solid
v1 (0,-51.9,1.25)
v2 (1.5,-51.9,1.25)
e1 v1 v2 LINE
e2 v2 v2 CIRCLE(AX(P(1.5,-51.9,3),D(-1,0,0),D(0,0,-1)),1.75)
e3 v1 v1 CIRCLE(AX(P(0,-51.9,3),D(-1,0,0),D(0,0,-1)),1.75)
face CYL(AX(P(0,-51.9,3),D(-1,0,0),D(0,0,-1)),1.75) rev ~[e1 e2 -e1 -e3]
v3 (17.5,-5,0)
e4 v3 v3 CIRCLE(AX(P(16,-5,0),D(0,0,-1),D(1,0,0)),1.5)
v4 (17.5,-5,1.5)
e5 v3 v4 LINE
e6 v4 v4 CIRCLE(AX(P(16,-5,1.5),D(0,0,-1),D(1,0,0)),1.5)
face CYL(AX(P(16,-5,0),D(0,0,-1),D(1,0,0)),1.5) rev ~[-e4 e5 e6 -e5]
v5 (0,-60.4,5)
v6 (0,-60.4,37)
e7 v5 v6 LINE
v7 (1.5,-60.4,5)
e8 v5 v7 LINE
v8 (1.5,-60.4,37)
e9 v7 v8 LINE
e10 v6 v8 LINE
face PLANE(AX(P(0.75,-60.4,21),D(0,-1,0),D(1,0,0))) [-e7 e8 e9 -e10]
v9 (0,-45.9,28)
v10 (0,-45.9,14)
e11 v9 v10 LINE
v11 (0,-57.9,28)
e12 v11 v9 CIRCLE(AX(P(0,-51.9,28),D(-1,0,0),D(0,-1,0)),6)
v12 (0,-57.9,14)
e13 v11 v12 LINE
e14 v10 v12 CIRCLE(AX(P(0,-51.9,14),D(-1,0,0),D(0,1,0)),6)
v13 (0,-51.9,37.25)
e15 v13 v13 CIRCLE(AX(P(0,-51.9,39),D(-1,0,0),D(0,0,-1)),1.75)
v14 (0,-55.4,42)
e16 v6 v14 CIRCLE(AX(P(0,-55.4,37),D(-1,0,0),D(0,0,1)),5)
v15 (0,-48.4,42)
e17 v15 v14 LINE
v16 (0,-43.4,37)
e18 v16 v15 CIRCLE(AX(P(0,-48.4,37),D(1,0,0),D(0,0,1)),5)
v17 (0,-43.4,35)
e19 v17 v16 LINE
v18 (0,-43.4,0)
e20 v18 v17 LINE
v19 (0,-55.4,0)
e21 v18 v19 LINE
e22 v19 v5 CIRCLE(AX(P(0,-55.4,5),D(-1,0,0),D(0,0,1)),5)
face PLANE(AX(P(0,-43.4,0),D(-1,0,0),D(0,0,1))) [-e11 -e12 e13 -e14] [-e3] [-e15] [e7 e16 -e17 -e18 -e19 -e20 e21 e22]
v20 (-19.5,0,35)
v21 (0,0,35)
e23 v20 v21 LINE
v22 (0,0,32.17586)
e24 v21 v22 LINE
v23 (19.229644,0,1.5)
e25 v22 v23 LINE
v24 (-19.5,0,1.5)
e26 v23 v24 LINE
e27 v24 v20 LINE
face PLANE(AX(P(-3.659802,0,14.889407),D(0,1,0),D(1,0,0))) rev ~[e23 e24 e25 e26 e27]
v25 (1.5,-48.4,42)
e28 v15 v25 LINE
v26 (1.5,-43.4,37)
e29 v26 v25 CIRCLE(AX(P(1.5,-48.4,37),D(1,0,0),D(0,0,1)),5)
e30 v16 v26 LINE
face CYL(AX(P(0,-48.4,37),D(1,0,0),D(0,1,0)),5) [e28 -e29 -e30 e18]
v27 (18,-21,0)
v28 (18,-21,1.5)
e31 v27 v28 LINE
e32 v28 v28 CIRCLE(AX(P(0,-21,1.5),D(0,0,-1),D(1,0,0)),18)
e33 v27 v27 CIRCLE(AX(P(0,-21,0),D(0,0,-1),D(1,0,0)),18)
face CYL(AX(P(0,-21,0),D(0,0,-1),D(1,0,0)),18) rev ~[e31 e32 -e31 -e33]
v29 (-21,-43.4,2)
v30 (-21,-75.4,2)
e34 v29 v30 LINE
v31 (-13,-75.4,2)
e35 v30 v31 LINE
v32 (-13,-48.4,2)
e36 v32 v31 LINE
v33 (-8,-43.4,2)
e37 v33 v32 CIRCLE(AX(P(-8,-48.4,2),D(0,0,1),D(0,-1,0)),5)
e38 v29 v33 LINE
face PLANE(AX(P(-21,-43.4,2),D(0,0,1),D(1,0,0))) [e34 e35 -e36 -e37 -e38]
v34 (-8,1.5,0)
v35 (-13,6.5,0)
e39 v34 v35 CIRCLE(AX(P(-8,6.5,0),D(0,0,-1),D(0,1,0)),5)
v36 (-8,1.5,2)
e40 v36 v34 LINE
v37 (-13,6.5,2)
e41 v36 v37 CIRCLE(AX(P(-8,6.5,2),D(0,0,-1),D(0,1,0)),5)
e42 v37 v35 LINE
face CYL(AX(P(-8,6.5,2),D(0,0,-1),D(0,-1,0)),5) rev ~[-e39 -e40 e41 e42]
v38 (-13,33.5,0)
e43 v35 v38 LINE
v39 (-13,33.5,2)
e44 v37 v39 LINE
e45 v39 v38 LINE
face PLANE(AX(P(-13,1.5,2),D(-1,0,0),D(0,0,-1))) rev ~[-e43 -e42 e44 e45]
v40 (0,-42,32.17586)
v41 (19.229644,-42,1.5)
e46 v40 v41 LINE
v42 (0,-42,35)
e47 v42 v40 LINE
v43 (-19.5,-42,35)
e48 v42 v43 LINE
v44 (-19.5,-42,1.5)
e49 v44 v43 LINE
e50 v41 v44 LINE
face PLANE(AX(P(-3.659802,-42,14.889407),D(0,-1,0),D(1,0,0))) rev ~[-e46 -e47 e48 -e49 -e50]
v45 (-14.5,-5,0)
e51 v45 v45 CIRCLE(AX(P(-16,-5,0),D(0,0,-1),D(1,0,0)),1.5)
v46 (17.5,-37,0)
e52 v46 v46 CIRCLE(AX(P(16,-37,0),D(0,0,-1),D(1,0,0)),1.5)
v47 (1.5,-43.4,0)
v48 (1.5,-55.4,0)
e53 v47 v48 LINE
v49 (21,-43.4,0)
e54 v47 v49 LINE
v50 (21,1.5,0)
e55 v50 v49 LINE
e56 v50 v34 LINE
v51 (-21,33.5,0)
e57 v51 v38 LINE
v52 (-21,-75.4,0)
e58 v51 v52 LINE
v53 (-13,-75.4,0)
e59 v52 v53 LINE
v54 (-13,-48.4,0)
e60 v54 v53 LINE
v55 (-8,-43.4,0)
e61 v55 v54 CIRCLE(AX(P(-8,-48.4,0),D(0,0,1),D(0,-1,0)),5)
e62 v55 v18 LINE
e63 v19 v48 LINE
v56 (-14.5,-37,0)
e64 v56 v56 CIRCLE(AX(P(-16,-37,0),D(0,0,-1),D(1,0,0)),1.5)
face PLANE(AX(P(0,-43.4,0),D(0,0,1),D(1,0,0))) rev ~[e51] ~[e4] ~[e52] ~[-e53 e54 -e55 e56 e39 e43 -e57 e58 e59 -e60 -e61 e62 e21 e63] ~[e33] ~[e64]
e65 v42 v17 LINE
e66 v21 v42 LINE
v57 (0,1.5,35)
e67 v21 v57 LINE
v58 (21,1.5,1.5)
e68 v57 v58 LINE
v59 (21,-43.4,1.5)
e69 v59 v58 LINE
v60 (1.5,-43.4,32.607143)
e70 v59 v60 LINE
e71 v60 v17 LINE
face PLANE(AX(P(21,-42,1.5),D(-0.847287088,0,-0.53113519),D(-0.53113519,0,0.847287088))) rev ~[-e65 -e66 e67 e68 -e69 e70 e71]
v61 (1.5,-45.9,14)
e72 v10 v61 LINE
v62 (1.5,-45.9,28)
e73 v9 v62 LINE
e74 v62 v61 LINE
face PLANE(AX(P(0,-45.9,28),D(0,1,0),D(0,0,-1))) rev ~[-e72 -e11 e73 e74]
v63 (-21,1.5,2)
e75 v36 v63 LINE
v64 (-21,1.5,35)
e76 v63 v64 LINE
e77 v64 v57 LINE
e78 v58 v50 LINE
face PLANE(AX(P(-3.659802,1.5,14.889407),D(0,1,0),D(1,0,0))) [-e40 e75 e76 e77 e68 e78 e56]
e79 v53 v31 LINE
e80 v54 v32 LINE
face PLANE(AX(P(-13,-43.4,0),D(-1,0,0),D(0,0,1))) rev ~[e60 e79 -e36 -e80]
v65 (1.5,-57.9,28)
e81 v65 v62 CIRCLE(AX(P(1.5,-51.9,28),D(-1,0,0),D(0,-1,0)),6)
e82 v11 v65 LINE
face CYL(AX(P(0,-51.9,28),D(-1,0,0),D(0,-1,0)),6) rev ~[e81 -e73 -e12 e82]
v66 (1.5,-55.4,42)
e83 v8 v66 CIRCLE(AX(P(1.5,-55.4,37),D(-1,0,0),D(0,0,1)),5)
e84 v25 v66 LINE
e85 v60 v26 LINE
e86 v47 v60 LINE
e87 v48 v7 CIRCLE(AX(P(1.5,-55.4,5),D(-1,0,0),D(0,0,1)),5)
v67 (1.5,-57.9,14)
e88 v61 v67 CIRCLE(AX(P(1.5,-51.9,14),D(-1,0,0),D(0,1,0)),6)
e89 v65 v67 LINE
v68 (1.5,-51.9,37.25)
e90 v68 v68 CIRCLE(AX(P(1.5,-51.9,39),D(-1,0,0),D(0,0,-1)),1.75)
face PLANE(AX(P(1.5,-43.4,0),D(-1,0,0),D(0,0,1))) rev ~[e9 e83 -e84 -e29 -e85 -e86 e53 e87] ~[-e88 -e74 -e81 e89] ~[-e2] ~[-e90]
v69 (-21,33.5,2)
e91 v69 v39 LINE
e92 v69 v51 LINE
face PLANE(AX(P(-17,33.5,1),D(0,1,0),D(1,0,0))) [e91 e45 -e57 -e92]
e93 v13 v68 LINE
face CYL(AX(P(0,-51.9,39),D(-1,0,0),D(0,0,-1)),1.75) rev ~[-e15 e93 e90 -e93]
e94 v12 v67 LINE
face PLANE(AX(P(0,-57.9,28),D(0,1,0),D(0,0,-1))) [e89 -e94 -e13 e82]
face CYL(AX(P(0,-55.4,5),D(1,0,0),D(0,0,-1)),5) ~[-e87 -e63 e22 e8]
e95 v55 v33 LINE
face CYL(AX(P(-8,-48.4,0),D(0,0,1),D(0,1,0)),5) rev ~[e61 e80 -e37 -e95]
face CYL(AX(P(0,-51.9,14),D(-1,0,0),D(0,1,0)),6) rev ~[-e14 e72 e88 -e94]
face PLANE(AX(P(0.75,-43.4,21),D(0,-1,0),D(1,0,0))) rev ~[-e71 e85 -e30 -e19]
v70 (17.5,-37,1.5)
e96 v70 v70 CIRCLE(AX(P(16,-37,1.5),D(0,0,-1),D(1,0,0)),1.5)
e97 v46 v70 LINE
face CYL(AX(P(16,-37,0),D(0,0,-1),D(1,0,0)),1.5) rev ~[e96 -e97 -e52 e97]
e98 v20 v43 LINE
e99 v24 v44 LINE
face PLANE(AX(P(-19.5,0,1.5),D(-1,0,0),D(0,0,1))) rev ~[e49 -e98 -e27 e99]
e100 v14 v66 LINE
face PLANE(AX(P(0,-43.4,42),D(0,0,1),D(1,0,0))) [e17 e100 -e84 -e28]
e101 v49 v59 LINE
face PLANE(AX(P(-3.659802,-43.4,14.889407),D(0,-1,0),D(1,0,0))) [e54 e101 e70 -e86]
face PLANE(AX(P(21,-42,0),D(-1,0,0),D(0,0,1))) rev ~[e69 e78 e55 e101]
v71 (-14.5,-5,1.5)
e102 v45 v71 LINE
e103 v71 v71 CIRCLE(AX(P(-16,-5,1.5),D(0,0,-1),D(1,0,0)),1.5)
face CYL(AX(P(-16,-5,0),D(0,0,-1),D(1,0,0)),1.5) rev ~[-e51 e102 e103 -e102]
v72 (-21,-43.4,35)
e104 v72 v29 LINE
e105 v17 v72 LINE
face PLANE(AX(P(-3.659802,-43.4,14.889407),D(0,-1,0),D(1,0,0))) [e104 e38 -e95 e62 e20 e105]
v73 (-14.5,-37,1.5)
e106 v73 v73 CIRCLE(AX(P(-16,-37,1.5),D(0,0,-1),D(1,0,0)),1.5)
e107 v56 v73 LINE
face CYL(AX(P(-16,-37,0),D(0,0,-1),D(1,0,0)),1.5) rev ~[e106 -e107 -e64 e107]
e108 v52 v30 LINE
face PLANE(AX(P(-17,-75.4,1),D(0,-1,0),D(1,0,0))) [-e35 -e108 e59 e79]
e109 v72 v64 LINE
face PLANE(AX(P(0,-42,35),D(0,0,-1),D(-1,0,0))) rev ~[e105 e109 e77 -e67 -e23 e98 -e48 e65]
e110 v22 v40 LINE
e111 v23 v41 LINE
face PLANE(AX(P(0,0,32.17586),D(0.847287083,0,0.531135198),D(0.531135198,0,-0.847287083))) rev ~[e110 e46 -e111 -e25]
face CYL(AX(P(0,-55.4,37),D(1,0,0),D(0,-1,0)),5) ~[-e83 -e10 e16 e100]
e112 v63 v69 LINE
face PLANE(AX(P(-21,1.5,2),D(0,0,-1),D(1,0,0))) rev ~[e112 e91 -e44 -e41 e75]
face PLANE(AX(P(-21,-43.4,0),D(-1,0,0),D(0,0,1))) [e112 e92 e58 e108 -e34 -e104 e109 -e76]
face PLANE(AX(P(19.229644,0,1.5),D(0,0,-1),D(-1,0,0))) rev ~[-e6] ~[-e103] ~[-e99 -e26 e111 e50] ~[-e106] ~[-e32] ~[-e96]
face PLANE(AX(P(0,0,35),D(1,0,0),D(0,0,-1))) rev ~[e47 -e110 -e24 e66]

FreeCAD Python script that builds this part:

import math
import FreeCAD as App
import Part
import Sketcher

V = App.Vector
Q = App.Units.Quantity


def edges_at(feature, points):
    """Names of the edges that pass closest to the given points."""
    edges = feature.Shape.Edges
    near = lambda p: min(range(len(edges)), key=lambda i: edges[i].distToShape(Part.Vertex(*p))[0])
    return sorted({f"Edge{near(p) + 1}" for p in points})

doc = App.newDocument("Part")
body = doc.addObject("PartDesign::Body", "Body")

sketch1 = body.newObject("Sketcher::SketchObject", "Sketch")
sketch1.AttachmentSupport = (doc.getObject("XZ_Plane"), [""])
sketch1.MapMode = "FlatFace"
sketch1.addGeometry(Part.LineSegment(V(-21, 0, 0), V(21, 0, 0)), False)
sketch1.addGeometry(Part.LineSegment(V(21, 0, 0), V(21, 1.5, 0)), False)
sketch1.addGeometry(Part.LineSegment(V(21, 1.5, 0), V(0, 35, 0)), False)
sketch1.addGeometry(Part.LineSegment(V(0, 35, 0), V(0, 32.2, 0)), False)
sketch1.addGeometry(Part.LineSegment(V(0, 32.2, 0), V(19.2, 1.5, 0)), False)
sketch1.addGeometry(Part.LineSegment(V(19.2, 1.5, 0), V(-19.5, 1.5, 0)), False)
sketch1.addGeometry(Part.LineSegment(V(-19.5, 1.5, 0), V(-19.5, 35, 0)), False)
sketch1.addGeometry(Part.LineSegment(V(-19.5, 35, 0), V(-21, 35, 0)), False)
sketch1.addGeometry(Part.LineSegment(V(-21, 35, 0), V(-21, 0, 0)), False)
sketch1.addConstraint(Sketcher.Constraint("Coincident", 0, 2, 1, 1))
sketch1.addConstraint(Sketcher.Constraint("Coincident", 1, 2, 2, 1))
sketch1.addConstraint(Sketcher.Constraint("Coincident", 2, 2, 3, 1))
sketch1.addConstraint(Sketcher.Constraint("Coincident", 3, 2, 4, 1))
sketch1.addConstraint(Sketcher.Constraint("Coincident", 4, 2, 5, 1))
sketch1.addConstraint(Sketcher.Constraint("Coincident", 5, 2, 6, 1))
sketch1.addConstraint(Sketcher.Constraint("Coincident", 6, 2, 7, 1))
sketch1.addConstraint(Sketcher.Constraint("Coincident", 7, 2, 8, 1))
sketch1.addConstraint(Sketcher.Constraint("Coincident", 8, 2, 0, 1))
sketch1.addConstraint(Sketcher.Constraint("Horizontal", 0))
sketch1.addConstraint(Sketcher.Constraint("Vertical", 1))
sketch1.addConstraint(Sketcher.Constraint("Vertical", 3))
sketch1.addConstraint(Sketcher.Constraint("Horizontal", 5))
sketch1.addConstraint(Sketcher.Constraint("Vertical", 6))
sketch1.addConstraint(Sketcher.Constraint("Horizontal", 7))
sketch1.addConstraint(Sketcher.Constraint("Vertical", 8))
sketch1.addConstraint(Sketcher.Constraint("Symmetric", 0, 2, 8, 2, -1, 1))
sketch1.addConstraint(Sketcher.Constraint("PointOnObject", 2, 2, -2))
sketch1.addConstraint(Sketcher.Constraint("Parallel", 2, 4))
sketch1.addConstraint(Sketcher.Constraint("Horizontal", 1, 2, 4, 2))
sketch1.addConstraint(Sketcher.Constraint("Horizontal", 2, 2, 6, 2))
sketch1.addConstraint(Sketcher.Constraint("Equal", 7, 1))
sketch1.addConstraint(Sketcher.Constraint("DistanceX", 0, 1, 0, 2, Q("42 mm")))
sketch1.addConstraint(Sketcher.Constraint("DistanceY", 8, 2, 8, 1, Q("35 mm")))
sketch1.addConstraint(Sketcher.Constraint("DistanceX", 7, 2, 7, 1, Q("1.5 mm")))
sketch1.addConstraint(Sketcher.Constraint("Distance", 4, Q("36.204801 mm")))
pad1 = body.newObject("PartDesign::Pad", "Pad")
pad1.Profile = sketch1
pad1.Length = 42

sketch2 = body.newObject("Sketcher::SketchObject", "Sketch001")
sketch2.AttachmentSupport = (doc.getObject("XY_Plane"), [""])
sketch2.MapMode = "FlatFace"
sketch2.addGeometry(Part.Circle(V(0, -21, 0), V(0, 0, 1), 18), False)
sketch2.addGeometry(Part.Circle(V(-16, -37, 0), V(0, 0, 1), 1.5), False)
sketch2.addGeometry(Part.Circle(V(16, -37, 0), V(0, 0, 1), 1.5), False)
sketch2.addGeometry(Part.Circle(V(16, -5, 0), V(0, 0, 1), 1.5), False)
sketch2.addGeometry(Part.Circle(V(-16, -5, 0), V(0, 0, 1), 1.5), False)
sketch2.addConstraint(Sketcher.Constraint("Equal", 1, 2))
sketch2.addConstraint(Sketcher.Constraint("Equal", 2, 3))
sketch2.addConstraint(Sketcher.Constraint("Equal", 3, 4))
sketch2.addConstraint(Sketcher.Constraint("Symmetric", 1, 3, 2, 3, -2))
sketch2.addConstraint(Sketcher.Constraint("Symmetric", 3, 3, 4, 3, -2))
sketch2.addConstraint(Sketcher.Constraint("PointOnObject", 0, 3, -2))
sketch2.addConstraint(Sketcher.Constraint("Vertical", 2, 3, 3, 3))
sketch2.addConstraint(Sketcher.Constraint("Diameter", 0, Q("36 mm")))
sketch2.addConstraint(Sketcher.Constraint("Diameter", 1, Q("3 mm")))
sketch2.addConstraint(Sketcher.Constraint("DistanceY", 0, 3, -1, 1, Q("21 mm")))
sketch2.addConstraint(Sketcher.Constraint("DistanceX", 1, 3, -1, 1, Q("16 mm")))
sketch2.addConstraint(Sketcher.Constraint("DistanceY", 1, 3, -1, 1, Q("37 mm")))
sketch2.addConstraint(Sketcher.Constraint("DistanceY", 3, 3, -1, 1, Q("5 mm")))
pocket1 = body.newObject("PartDesign::Pocket", "Pocket")
pocket1.Profile = sketch2
pocket1.Length = 2
pocket1.Reversed = True

sketch3 = body.newObject("Sketcher::SketchObject", "Sketch002")
sketch3.AttachmentSupport = (doc.getObject("XZ_Plane"), [""])
sketch3.MapMode = "FlatFace"
sketch3.addGeometry(Part.LineSegment(V(-21, 35, 0), V(0, 35, 0)), False)
sketch3.addGeometry(Part.LineSegment(V(0, 35, 0), V(21, 1.5, 0)), False)
sketch3.addGeometry(Part.LineSegment(V(21, 1.5, 0), V(21, 0, 0)), False)
sketch3.addGeometry(Part.LineSegment(V(21, 0, 0), V(-21, 0, 0)), False)
sketch3.addGeometry(Part.LineSegment(V(-21, 0, 0), V(-21, 35, 0)), False)
sketch3.addConstraint(Sketcher.Constraint("Coincident", 0, 2, 1, 1))
sketch3.addConstraint(Sketcher.Constraint("Coincident", 1, 2, 2, 1))
sketch3.addConstraint(Sketcher.Constraint("Coincident", 2, 2, 3, 1))
sketch3.addConstraint(Sketcher.Constraint("Coincident", 3, 2, 4, 1))
sketch3.addConstraint(Sketcher.Constraint("Coincident", 4, 2, 0, 1))
sketch3.addConstraint(Sketcher.Constraint("Horizontal", 0))
sketch3.addConstraint(Sketcher.Constraint("Vertical", 2))
sketch3.addConstraint(Sketcher.Constraint("Horizontal", 3))
sketch3.addConstraint(Sketcher.Constraint("Vertical", 4))
sketch3.addConstraint(Sketcher.Constraint("Symmetric", 2, 2, 3, 2, -1, 1))
sketch3.addConstraint(Sketcher.Constraint("PointOnObject", 0, 2, -2))
sketch3.addConstraint(Sketcher.Constraint("DistanceX", 0, 1, 0, 2, Q("21 mm")))
sketch3.addConstraint(Sketcher.Constraint("DistanceY", 4, 1, 4, 2, Q("35 mm")))
sketch3.addConstraint(Sketcher.Constraint("DistanceY", 2, 2, 2, 1, Q("1.5 mm")))
pad2 = body.newObject("PartDesign::Pad", "Pad001")
pad2.Profile = sketch3
pad2.Length = 1.5
pad2.Reversed = True

sketch4 = body.newObject("Sketcher::SketchObject", "Sketch003")
sketch4.AttachmentSupport = (doc.getObject("XZ_Plane"), [""])
sketch4.MapMode = "FlatFace"
sketch4.AttachmentOffset = App.Placement(V(0, 0, 42), App.Rotation())
sketch4.addGeometry(Part.LineSegment(V(-21, 35, 0), V(-21, 0, 0)), False)
sketch4.addGeometry(Part.LineSegment(V(-21, 0, 0), V(21, 0, 0)), False)
sketch4.addGeometry(Part.LineSegment(V(21, 0, 0), V(21, 1.5, 0)), False)
sketch4.addGeometry(Part.LineSegment(V(21, 1.5, 0), V(0, 35, 0)), False)
sketch4.addGeometry(Part.LineSegment(V(0, 35, 0), V(-21, 35, 0)), False)
sketch4.addConstraint(Sketcher.Constraint("Coincident", 0, 2, 1, 1))
sketch4.addConstraint(Sketcher.Constraint("Coincident", 1, 2, 2, 1))
sketch4.addConstraint(Sketcher.Constraint("Coincident", 2, 2, 3, 1))
sketch4.addConstraint(Sketcher.Constraint("Coincident", 3, 2, 4, 1))
sketch4.addConstraint(Sketcher.Constraint("Coincident", 4, 2, 0, 1))
sketch4.addConstraint(Sketcher.Constraint("Vertical", 0))
sketch4.addConstraint(Sketcher.Constraint("Horizontal", 1))
sketch4.addConstraint(Sketcher.Constraint("Vertical", 2))
sketch4.addConstraint(Sketcher.Constraint("Horizontal", 4))
sketch4.addConstraint(Sketcher.Constraint("Symmetric", 0, 2, 1, 2, -1, 1))
sketch4.addConstraint(Sketcher.Constraint("PointOnObject", 3, 2, -2))
sketch4.addConstraint(Sketcher.Constraint("DistanceX", 1, 1, 1, 2, Q("42 mm")))
sketch4.addConstraint(Sketcher.Constraint("DistanceY", 0, 2, 0, 1, Q("35 mm")))
sketch4.addConstraint(Sketcher.Constraint("DistanceY", 2, 1, 2, 2, Q("1.5 mm")))
pad3 = body.newObject("PartDesign::Pad", "Pad002")
pad3.Profile = sketch4
pad3.Length = 1.4

sketch5 = body.newObject("Sketcher::SketchObject", "Sketch004")
sketch5.AttachmentSupport = (doc.getObject("XZ_Plane"), [""])
sketch5.MapMode = "FlatFace"
sketch5.AttachmentOffset = App.Placement(V(0, 0, -1.5), App.Rotation())
sketch5.addGeometry(Part.LineSegment(V(-21, 0, 0), V(-21, 2, 0)), False)
sketch5.addGeometry(Part.LineSegment(V(-21, 2, 0), V(-13, 2, 0)), False)
sketch5.addGeometry(Part.LineSegment(V(-13, 2, 0), V(-13, 0, 0)), False)
sketch5.addGeometry(Part.LineSegment(V(-13, 0, 0), V(-21, 0, 0)), False)
sketch5.addConstraint(Sketcher.Constraint("Coincident", 0, 2, 1, 1))
sketch5.addConstraint(Sketcher.Constraint("Coincident", 1, 2, 2, 1))
sketch5.addConstraint(Sketcher.Constraint("Coincident", 2, 2, 3, 1))
sketch5.addConstraint(Sketcher.Constraint("Coincident", 3, 2, 0, 1))
sketch5.addConstraint(Sketcher.Constraint("Vertical", 0))
sketch5.addConstraint(Sketcher.Constraint("Horizontal", 1))
sketch5.addConstraint(Sketcher.Constraint("Vertical", 2))
sketch5.addConstraint(Sketcher.Constraint("Horizontal", 3))
sketch5.addConstraint(Sketcher.Constraint("PointOnObject", 2, 2, -1))
sketch5.addConstraint(Sketcher.Constraint("DistanceX", 1, 1, 1, 2, Q("8 mm")))
sketch5.addConstraint(Sketcher.Constraint("DistanceY", 0, 1, 0, 2, Q("2 mm")))
sketch5.addConstraint(Sketcher.Constraint("DistanceX", 0, 2, -1, 1, Q("21 mm")))
pad4 = body.newObject("PartDesign::Pad", "Pad003")
pad4.Profile = sketch5
pad4.Length = 32
pad4.Reversed = True

sketch6 = body.newObject("Sketcher::SketchObject", "Sketch005")
sketch6.AttachmentSupport = (doc.getObject("XZ_Plane"), [""])
sketch6.MapMode = "FlatFace"
sketch6.AttachmentOffset = App.Placement(V(0, 0, 43.4), App.Rotation())
sketch6.addGeometry(Part.LineSegment(V(-21, 2, 0), V(-21, 0, 0)), False)
sketch6.addGeometry(Part.LineSegment(V(-21, 0, 0), V(-13, 0, 0)), False)
sketch6.addGeometry(Part.LineSegment(V(-13, 0, 0), V(-13, 2, 0)), False)
sketch6.addGeometry(Part.LineSegment(V(-13, 2, 0), V(-21, 2, 0)), False)
sketch6.addConstraint(Sketcher.Constraint("Coincident", 0, 2, 1, 1))
sketch6.addConstraint(Sketcher.Constraint("Coincident", 1, 2, 2, 1))
sketch6.addConstraint(Sketcher.Constraint("Coincident", 2, 2, 3, 1))
sketch6.addConstraint(Sketcher.Constraint("Coincident", 3, 2, 0, 1))
sketch6.addConstraint(Sketcher.Constraint("Vertical", 0))
sketch6.addConstraint(Sketcher.Constraint("Horizontal", 1))
sketch6.addConstraint(Sketcher.Constraint("Vertical", 2))
sketch6.addConstraint(Sketcher.Constraint("Horizontal", 3))
sketch6.addConstraint(Sketcher.Constraint("PointOnObject", 0, 2, -1))
sketch6.addConstraint(Sketcher.Constraint("DistanceX", 1, 1, 1, 2, Q("8 mm")))
sketch6.addConstraint(Sketcher.Constraint("DistanceY", 0, 2, 0, 1, Q("2 mm")))
sketch6.addConstraint(Sketcher.Constraint("DistanceX", 0, 2, -1, 1, Q("21 mm")))
pad5 = body.newObject("PartDesign::Pad", "Pad004")
pad5.Profile = sketch6
pad5.Length = 32

sketch7 = body.newObject("Sketcher::SketchObject", "Sketch006")
sketch7.AttachmentSupport = (doc.getObject("XZ_Plane"), [""])
sketch7.MapMode = "FlatFace"
sketch7.AttachmentOffset = App.Placement(V(0, 0, 43.4), App.Rotation())
sketch7.addGeometry(Part.LineSegment(V(0, 42, 0), V(0, 0, 0)), False)
sketch7.addGeometry(Part.LineSegment(V(0, 0, 0), V(1.5, 0, 0)), False)
sketch7.addGeometry(Part.LineSegment(V(1.5, 0, 0), V(1.5, 42, 0)), False)
sketch7.addGeometry(Part.LineSegment(V(1.5, 42, 0), V(0, 42, 0)), False)
sketch7.addConstraint(Sketcher.Constraint("Coincident", 0, 2, 1, 1))
sketch7.addConstraint(Sketcher.Constraint("Coincident", 1, 2, 2, 1))
sketch7.addConstraint(Sketcher.Constraint("Coincident", 2, 2, 3, 1))
sketch7.addConstraint(Sketcher.Constraint("Coincident", 3, 2, 0, 1))
sketch7.addConstraint(Sketcher.Constraint("Vertical", 0))
sketch7.addConstraint(Sketcher.Constraint("Horizontal", 1))
sketch7.addConstraint(Sketcher.Constraint("Vertical", 2))
sketch7.addConstraint(Sketcher.Constraint("Horizontal", 3))
sketch7.addConstraint(Sketcher.Constraint("Coincident", 0, 2, -1, 1))
sketch7.addConstraint(Sketcher.Constraint("DistanceY", 0, 2, 0, 1, Q("42 mm")))
sketch7.addConstraint(Sketcher.Constraint("DistanceX", 1, 1, 1, 2, Q("1.5 mm")))
pad6 = body.newObject("PartDesign::Pad", "Pad005")
pad6.Profile = sketch7
pad6.Length = 17

sketch8 = body.newObject("Sketcher::SketchObject", "Sketch007")
sketch8.AttachmentSupport = (doc.getObject("YZ_Plane"), [""])
sketch8.MapMode = "FlatFace"
sketch8.addGeometry(Part.Circle(V(-51.9, 39, 0), V(0, 0, 1), 1.8), False)
sketch8.addGeometry(Part.Circle(V(-51.9, 3, 0), V(0, 0, 1), 1.8), False)
sketch8.addGeometry(Part.ArcOfCircle(Part.Circle(V(-51.9, 28, 0), V(0, 0, 1), 6), math.radians(0), math.radians(180)), False)
sketch8.addGeometry(Part.LineSegment(V(-45.9, 28, 0), V(-45.9, 14, 0)), False)
sketch8.addGeometry(Part.ArcOfCircle(Part.Circle(V(-51.9, 14, 0), V(0, 0, 1), 6), math.radians(180), math.radians(360)), False)
sketch8.addGeometry(Part.LineSegment(V(-57.9, 14, 0), V(-57.9, 28, 0)), False)
sketch8.addConstraint(Sketcher.Constraint("Tangent", 2, 1, 3, 1))
sketch8.addConstraint(Sketcher.Constraint("Tangent", 3, 2, 4, 2))
sketch8.addConstraint(Sketcher.Constraint("Tangent", 4, 1, 5, 1))
sketch8.addConstraint(Sketcher.Constraint("Tangent", 5, 2, 2, 2))
sketch8.addConstraint(Sketcher.Constraint("Vertical", 3))
sketch8.addConstraint(Sketcher.Constraint("Vertical", 5))
sketch8.addConstraint(Sketcher.Constraint("Equal", 0, 1))
sketch8.addConstraint(Sketcher.Constraint("Vertical", 0, 3, 1, 3))
sketch8.addConstraint(Sketcher.Constraint("Vertical", 1, 3, 2, 3))
sketch8.addConstraint(Sketcher.Constraint("Radius", 2, Q("6 mm")))
sketch8.addConstraint(Sketcher.Constraint("Diameter", 0, Q("3.5 mm")))
sketch8.addConstraint(Sketcher.Constraint("DistanceY", 3, 2, 3, 1, Q("14 mm")))
sketch8.addConstraint(Sketcher.Constraint("DistanceY", -1, 1, 0, 3, Q("39 mm")))
sketch8.addConstraint(Sketcher.Constraint("DistanceY", -1, 1, 1, 3, Q("3 mm")))
sketch8.addConstraint(Sketcher.Constraint("DistanceY", -1, 1, 2, 3, Q("28 mm")))
sketch8.addConstraint(Sketcher.Constraint("DistanceX", 0, 3, -1, 1, Q("51.9 mm")))
pocket2 = body.newObject("PartDesign::Pocket", "Pocket001")
pocket2.Profile = sketch8
pocket2.Length = 5
pocket2.Reversed = True
doc.recompute()

fillet = body.newObject("PartDesign::Fillet", "Fillet")
fillet.Base = (pocket2, edges_at(pocket2, [
    (0.75, -43.4, 42),
    (0.75, -60.4, 42),
    (0.75, -60.4, 0),
    (-13, -43.4, 1),
    (-13, 1.5, 1),
]))
fillet.Radius = 5

doc.recompute()
